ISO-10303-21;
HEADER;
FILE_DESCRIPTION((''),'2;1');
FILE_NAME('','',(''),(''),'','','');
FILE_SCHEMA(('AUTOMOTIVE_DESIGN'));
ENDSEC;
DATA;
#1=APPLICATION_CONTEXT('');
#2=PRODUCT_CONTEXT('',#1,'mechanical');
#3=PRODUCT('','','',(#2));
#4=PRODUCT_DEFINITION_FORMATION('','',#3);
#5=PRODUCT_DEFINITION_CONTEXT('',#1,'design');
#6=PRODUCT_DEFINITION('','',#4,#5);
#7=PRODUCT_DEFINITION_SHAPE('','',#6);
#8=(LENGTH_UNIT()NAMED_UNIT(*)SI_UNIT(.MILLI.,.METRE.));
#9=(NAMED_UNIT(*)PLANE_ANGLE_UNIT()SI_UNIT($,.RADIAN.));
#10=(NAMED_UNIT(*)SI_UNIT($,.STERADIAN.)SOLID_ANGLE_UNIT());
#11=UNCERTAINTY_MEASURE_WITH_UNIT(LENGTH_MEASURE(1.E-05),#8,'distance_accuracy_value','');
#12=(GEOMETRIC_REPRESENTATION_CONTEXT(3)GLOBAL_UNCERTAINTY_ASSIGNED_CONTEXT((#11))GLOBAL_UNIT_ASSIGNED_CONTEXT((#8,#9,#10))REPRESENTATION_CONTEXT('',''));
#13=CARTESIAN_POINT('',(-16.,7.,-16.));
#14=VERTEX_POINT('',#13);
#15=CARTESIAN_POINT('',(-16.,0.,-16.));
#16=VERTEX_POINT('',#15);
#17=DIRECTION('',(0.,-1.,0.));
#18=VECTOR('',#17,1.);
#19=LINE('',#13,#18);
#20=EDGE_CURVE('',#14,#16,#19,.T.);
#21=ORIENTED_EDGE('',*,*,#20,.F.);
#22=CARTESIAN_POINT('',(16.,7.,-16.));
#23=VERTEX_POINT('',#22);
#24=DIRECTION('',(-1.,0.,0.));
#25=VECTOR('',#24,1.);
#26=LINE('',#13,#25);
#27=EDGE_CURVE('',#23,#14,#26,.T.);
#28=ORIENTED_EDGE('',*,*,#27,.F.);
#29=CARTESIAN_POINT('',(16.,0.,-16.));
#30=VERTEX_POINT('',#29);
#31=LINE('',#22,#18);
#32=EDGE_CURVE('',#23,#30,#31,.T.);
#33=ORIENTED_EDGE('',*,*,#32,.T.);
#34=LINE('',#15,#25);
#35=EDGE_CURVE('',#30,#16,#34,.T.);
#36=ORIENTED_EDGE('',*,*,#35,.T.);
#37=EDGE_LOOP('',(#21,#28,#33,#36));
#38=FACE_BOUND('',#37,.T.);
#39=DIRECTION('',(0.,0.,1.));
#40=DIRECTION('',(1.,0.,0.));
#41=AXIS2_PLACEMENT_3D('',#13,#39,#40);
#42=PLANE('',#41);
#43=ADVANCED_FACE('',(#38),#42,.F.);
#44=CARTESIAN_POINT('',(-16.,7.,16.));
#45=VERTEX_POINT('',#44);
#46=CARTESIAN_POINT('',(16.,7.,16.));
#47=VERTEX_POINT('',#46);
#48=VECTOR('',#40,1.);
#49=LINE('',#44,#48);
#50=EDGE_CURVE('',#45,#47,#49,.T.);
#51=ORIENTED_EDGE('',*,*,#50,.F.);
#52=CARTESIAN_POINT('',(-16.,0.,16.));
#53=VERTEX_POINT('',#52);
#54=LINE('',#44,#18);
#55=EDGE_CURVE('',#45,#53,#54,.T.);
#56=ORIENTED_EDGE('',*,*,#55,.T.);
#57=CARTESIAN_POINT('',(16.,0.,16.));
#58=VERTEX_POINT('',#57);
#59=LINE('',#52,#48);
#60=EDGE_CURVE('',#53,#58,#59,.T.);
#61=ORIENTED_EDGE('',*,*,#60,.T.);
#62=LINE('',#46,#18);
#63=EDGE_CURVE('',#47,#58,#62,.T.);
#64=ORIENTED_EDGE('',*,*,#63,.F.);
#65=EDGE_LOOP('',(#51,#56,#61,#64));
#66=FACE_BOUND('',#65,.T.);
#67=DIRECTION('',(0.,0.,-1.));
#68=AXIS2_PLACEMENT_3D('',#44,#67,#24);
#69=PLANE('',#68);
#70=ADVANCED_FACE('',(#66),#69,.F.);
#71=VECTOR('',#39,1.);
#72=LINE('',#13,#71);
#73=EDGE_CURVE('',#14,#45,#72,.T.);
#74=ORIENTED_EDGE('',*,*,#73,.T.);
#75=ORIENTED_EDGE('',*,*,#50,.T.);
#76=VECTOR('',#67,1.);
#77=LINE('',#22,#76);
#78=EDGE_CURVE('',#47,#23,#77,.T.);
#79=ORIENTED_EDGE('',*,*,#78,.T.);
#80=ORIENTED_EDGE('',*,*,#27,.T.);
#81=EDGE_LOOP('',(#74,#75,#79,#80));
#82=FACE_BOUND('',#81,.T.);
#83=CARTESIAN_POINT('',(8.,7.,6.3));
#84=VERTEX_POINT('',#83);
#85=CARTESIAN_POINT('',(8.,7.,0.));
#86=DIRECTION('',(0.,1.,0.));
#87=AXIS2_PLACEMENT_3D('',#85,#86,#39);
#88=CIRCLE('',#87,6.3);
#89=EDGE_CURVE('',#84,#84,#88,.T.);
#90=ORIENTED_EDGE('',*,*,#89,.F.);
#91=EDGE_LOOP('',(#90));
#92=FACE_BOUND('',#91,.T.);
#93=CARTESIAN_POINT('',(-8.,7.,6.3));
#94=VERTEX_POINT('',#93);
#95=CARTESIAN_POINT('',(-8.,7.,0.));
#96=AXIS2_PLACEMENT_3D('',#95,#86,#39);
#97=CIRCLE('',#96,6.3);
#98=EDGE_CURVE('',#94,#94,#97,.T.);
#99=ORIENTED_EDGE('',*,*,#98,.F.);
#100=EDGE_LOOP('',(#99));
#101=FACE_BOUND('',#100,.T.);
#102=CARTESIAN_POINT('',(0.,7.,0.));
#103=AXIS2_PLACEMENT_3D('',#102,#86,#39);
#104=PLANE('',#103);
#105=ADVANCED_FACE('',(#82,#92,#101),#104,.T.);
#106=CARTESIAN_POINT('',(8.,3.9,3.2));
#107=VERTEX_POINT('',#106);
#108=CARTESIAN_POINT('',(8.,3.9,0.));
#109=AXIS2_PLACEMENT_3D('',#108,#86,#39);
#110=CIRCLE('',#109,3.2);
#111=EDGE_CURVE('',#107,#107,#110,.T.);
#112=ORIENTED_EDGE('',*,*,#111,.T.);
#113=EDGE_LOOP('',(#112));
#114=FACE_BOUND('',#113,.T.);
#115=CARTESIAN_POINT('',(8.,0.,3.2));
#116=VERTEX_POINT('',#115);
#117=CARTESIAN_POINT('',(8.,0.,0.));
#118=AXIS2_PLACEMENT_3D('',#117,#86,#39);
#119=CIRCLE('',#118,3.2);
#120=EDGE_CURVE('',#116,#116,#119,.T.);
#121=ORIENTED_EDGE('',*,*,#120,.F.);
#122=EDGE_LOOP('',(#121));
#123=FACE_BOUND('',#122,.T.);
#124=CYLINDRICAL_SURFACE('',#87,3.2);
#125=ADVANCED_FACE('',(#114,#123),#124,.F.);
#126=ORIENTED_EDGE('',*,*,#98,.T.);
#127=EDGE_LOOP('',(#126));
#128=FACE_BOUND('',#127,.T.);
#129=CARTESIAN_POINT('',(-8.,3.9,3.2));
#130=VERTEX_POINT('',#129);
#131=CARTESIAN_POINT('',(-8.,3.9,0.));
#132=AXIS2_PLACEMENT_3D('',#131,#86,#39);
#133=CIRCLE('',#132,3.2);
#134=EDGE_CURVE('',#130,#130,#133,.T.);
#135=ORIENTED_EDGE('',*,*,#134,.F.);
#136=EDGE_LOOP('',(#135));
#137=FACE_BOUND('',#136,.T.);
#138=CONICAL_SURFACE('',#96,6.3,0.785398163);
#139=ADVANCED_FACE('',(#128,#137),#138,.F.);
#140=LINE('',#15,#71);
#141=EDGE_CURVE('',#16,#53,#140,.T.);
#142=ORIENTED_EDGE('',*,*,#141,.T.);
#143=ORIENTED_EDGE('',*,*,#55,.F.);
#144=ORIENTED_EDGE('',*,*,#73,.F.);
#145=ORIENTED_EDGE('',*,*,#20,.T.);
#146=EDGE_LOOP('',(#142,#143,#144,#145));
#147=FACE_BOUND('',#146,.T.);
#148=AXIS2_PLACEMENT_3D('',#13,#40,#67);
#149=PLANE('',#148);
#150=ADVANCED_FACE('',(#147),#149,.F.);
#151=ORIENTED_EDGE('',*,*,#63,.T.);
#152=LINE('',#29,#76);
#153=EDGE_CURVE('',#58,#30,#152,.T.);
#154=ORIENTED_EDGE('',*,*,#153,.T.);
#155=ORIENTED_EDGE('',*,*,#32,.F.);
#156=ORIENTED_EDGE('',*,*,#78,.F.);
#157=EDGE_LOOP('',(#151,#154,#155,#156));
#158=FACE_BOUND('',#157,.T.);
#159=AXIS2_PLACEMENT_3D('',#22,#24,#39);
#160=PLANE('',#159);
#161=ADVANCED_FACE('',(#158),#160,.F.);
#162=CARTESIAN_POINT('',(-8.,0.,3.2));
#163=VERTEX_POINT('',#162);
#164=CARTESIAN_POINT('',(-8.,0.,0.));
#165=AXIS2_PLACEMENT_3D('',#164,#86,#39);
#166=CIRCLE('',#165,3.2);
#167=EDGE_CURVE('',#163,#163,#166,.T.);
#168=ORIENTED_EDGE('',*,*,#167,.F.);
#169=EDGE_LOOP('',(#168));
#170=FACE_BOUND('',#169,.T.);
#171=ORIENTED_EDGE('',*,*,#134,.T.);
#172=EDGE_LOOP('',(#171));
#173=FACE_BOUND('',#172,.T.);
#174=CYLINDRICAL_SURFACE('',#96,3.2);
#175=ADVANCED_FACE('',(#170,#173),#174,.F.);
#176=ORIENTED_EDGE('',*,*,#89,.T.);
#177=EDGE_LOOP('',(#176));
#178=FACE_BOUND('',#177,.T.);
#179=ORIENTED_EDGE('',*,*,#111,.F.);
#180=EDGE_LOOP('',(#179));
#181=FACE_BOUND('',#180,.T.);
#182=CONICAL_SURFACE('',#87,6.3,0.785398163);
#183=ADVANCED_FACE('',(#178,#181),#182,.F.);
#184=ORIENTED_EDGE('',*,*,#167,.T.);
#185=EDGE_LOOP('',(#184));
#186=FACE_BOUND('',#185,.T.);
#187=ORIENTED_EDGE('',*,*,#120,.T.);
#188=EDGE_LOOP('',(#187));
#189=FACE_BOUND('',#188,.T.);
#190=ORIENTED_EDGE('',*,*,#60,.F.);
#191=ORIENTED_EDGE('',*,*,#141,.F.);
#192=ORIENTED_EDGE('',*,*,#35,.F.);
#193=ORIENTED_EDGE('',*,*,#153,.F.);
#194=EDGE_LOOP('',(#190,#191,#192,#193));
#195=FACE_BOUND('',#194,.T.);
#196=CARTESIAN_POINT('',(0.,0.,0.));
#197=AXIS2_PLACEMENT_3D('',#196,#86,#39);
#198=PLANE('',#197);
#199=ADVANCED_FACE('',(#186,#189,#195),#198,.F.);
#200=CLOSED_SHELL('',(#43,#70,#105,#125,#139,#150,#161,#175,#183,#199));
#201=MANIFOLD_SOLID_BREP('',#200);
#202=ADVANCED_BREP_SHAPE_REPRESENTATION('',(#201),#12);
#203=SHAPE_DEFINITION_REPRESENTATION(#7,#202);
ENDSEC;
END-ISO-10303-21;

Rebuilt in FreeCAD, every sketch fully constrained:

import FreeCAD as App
import Part
import Sketcher
Q = App.Units.Quantity

doc = App.newDocument("Part")
body = doc.addObject("PartDesign::Body", "Body")

# Sketch on XZ plane
sketch1 = body.newObject("Sketcher::SketchObject", "Sketch")
sketch1.AttachmentSupport = (doc.getObject("XZ_Plane"), [""])
sketch1.MapMode = "FlatFace"
sketch1.addGeometry(Part.LineSegment(App.Vector(-16, -16, 0), App.Vector(-16, 16, 0)), False)
sketch1.addGeometry(Part.LineSegment(App.Vector(-16, 16, 0), App.Vector(16, 16, 0)), False)
sketch1.addGeometry(Part.LineSegment(App.Vector(16, 16, 0), App.Vector(16, -16, 0)), False)
sketch1.addGeometry(Part.LineSegment(App.Vector(16, -16, 0), App.Vector(-16, -16, 0)), False)
sketch1.addConstraint(Sketcher.Constraint("Coincident", 0, 2, 1, 1))
sketch1.addConstraint(Sketcher.Constraint("Coincident", 1, 2, 2, 1))
sketch1.addConstraint(Sketcher.Constraint("Coincident", 2, 2, 3, 1))
sketch1.addConstraint(Sketcher.Constraint("Coincident", 3, 2, 0, 1))
sketch1.addConstraint(Sketcher.Constraint("Vertical", 0))
sketch1.addConstraint(Sketcher.Constraint("Horizontal", 1))
sketch1.addConstraint(Sketcher.Constraint("Vertical", 2))
sketch1.addConstraint(Sketcher.Constraint("Horizontal", 3))
sketch1.addConstraint(Sketcher.Constraint("Symmetric", 0, 2, 2, 2, -1, 1))
sketch1.addConstraint(Sketcher.Constraint("Equal", 3, 0))
sketch1.addConstraint(Sketcher.Constraint("DistanceX", 1, 1, 1, 2, Q("32 mm")))
pad1 = body.newObject("PartDesign::Pad", "Pad")
pad1.Profile = sketch1
pad1.Length = 7
pad1.Reversed = True

# Sketch on XZ plane
sketch2 = body.newObject("Sketcher::SketchObject", "Sketch001")
sketch2.AttachmentSupport = (doc.getObject("XZ_Plane"), [""])
sketch2.MapMode = "FlatFace"
sketch2.AttachmentOffset = App.Placement(App.Vector(0, 0, -7), App.Rotation())
sketch2.addGeometry(Part.Circle(App.Vector(8, 0, 0), App.Vector(0, 0, 1), 3.2), False)
sketch2.addGeometry(Part.Circle(App.Vector(-8, 0, 0), App.Vector(0, 0, 1), 3.2), False)
sketch2.addConstraint(Sketcher.Constraint("Equal", 0, 1))
sketch2.addConstraint(Sketcher.Constraint("Symmetric", 0, 3, 1, 3, -1, 1))
sketch2.addConstraint(Sketcher.Constraint("PointOnObject", 0, 3, -1))
sketch2.addConstraint(Sketcher.Constraint("Diameter", 0, Q("6.4 mm")))
sketch2.addConstraint(Sketcher.Constraint("DistanceX", -1, 1, 0, 3, Q("8 mm")))
doc.recompute()
hole = body.newObject("PartDesign::Hole", "Hole")
hole.Profile = sketch2
hole.ThreadType = "None"
hole.Diameter = 6.4
hole.DepthType = "Dimension"
hole.Depth = 7
hole.DrillPoint = "Flat"
hole.HoleCutType = "Countersink"
hole.HoleCutDiameter = 12.6
hole.HoleCutCountersinkAngle = 90
hole.Reversed = True

doc.recompute()
